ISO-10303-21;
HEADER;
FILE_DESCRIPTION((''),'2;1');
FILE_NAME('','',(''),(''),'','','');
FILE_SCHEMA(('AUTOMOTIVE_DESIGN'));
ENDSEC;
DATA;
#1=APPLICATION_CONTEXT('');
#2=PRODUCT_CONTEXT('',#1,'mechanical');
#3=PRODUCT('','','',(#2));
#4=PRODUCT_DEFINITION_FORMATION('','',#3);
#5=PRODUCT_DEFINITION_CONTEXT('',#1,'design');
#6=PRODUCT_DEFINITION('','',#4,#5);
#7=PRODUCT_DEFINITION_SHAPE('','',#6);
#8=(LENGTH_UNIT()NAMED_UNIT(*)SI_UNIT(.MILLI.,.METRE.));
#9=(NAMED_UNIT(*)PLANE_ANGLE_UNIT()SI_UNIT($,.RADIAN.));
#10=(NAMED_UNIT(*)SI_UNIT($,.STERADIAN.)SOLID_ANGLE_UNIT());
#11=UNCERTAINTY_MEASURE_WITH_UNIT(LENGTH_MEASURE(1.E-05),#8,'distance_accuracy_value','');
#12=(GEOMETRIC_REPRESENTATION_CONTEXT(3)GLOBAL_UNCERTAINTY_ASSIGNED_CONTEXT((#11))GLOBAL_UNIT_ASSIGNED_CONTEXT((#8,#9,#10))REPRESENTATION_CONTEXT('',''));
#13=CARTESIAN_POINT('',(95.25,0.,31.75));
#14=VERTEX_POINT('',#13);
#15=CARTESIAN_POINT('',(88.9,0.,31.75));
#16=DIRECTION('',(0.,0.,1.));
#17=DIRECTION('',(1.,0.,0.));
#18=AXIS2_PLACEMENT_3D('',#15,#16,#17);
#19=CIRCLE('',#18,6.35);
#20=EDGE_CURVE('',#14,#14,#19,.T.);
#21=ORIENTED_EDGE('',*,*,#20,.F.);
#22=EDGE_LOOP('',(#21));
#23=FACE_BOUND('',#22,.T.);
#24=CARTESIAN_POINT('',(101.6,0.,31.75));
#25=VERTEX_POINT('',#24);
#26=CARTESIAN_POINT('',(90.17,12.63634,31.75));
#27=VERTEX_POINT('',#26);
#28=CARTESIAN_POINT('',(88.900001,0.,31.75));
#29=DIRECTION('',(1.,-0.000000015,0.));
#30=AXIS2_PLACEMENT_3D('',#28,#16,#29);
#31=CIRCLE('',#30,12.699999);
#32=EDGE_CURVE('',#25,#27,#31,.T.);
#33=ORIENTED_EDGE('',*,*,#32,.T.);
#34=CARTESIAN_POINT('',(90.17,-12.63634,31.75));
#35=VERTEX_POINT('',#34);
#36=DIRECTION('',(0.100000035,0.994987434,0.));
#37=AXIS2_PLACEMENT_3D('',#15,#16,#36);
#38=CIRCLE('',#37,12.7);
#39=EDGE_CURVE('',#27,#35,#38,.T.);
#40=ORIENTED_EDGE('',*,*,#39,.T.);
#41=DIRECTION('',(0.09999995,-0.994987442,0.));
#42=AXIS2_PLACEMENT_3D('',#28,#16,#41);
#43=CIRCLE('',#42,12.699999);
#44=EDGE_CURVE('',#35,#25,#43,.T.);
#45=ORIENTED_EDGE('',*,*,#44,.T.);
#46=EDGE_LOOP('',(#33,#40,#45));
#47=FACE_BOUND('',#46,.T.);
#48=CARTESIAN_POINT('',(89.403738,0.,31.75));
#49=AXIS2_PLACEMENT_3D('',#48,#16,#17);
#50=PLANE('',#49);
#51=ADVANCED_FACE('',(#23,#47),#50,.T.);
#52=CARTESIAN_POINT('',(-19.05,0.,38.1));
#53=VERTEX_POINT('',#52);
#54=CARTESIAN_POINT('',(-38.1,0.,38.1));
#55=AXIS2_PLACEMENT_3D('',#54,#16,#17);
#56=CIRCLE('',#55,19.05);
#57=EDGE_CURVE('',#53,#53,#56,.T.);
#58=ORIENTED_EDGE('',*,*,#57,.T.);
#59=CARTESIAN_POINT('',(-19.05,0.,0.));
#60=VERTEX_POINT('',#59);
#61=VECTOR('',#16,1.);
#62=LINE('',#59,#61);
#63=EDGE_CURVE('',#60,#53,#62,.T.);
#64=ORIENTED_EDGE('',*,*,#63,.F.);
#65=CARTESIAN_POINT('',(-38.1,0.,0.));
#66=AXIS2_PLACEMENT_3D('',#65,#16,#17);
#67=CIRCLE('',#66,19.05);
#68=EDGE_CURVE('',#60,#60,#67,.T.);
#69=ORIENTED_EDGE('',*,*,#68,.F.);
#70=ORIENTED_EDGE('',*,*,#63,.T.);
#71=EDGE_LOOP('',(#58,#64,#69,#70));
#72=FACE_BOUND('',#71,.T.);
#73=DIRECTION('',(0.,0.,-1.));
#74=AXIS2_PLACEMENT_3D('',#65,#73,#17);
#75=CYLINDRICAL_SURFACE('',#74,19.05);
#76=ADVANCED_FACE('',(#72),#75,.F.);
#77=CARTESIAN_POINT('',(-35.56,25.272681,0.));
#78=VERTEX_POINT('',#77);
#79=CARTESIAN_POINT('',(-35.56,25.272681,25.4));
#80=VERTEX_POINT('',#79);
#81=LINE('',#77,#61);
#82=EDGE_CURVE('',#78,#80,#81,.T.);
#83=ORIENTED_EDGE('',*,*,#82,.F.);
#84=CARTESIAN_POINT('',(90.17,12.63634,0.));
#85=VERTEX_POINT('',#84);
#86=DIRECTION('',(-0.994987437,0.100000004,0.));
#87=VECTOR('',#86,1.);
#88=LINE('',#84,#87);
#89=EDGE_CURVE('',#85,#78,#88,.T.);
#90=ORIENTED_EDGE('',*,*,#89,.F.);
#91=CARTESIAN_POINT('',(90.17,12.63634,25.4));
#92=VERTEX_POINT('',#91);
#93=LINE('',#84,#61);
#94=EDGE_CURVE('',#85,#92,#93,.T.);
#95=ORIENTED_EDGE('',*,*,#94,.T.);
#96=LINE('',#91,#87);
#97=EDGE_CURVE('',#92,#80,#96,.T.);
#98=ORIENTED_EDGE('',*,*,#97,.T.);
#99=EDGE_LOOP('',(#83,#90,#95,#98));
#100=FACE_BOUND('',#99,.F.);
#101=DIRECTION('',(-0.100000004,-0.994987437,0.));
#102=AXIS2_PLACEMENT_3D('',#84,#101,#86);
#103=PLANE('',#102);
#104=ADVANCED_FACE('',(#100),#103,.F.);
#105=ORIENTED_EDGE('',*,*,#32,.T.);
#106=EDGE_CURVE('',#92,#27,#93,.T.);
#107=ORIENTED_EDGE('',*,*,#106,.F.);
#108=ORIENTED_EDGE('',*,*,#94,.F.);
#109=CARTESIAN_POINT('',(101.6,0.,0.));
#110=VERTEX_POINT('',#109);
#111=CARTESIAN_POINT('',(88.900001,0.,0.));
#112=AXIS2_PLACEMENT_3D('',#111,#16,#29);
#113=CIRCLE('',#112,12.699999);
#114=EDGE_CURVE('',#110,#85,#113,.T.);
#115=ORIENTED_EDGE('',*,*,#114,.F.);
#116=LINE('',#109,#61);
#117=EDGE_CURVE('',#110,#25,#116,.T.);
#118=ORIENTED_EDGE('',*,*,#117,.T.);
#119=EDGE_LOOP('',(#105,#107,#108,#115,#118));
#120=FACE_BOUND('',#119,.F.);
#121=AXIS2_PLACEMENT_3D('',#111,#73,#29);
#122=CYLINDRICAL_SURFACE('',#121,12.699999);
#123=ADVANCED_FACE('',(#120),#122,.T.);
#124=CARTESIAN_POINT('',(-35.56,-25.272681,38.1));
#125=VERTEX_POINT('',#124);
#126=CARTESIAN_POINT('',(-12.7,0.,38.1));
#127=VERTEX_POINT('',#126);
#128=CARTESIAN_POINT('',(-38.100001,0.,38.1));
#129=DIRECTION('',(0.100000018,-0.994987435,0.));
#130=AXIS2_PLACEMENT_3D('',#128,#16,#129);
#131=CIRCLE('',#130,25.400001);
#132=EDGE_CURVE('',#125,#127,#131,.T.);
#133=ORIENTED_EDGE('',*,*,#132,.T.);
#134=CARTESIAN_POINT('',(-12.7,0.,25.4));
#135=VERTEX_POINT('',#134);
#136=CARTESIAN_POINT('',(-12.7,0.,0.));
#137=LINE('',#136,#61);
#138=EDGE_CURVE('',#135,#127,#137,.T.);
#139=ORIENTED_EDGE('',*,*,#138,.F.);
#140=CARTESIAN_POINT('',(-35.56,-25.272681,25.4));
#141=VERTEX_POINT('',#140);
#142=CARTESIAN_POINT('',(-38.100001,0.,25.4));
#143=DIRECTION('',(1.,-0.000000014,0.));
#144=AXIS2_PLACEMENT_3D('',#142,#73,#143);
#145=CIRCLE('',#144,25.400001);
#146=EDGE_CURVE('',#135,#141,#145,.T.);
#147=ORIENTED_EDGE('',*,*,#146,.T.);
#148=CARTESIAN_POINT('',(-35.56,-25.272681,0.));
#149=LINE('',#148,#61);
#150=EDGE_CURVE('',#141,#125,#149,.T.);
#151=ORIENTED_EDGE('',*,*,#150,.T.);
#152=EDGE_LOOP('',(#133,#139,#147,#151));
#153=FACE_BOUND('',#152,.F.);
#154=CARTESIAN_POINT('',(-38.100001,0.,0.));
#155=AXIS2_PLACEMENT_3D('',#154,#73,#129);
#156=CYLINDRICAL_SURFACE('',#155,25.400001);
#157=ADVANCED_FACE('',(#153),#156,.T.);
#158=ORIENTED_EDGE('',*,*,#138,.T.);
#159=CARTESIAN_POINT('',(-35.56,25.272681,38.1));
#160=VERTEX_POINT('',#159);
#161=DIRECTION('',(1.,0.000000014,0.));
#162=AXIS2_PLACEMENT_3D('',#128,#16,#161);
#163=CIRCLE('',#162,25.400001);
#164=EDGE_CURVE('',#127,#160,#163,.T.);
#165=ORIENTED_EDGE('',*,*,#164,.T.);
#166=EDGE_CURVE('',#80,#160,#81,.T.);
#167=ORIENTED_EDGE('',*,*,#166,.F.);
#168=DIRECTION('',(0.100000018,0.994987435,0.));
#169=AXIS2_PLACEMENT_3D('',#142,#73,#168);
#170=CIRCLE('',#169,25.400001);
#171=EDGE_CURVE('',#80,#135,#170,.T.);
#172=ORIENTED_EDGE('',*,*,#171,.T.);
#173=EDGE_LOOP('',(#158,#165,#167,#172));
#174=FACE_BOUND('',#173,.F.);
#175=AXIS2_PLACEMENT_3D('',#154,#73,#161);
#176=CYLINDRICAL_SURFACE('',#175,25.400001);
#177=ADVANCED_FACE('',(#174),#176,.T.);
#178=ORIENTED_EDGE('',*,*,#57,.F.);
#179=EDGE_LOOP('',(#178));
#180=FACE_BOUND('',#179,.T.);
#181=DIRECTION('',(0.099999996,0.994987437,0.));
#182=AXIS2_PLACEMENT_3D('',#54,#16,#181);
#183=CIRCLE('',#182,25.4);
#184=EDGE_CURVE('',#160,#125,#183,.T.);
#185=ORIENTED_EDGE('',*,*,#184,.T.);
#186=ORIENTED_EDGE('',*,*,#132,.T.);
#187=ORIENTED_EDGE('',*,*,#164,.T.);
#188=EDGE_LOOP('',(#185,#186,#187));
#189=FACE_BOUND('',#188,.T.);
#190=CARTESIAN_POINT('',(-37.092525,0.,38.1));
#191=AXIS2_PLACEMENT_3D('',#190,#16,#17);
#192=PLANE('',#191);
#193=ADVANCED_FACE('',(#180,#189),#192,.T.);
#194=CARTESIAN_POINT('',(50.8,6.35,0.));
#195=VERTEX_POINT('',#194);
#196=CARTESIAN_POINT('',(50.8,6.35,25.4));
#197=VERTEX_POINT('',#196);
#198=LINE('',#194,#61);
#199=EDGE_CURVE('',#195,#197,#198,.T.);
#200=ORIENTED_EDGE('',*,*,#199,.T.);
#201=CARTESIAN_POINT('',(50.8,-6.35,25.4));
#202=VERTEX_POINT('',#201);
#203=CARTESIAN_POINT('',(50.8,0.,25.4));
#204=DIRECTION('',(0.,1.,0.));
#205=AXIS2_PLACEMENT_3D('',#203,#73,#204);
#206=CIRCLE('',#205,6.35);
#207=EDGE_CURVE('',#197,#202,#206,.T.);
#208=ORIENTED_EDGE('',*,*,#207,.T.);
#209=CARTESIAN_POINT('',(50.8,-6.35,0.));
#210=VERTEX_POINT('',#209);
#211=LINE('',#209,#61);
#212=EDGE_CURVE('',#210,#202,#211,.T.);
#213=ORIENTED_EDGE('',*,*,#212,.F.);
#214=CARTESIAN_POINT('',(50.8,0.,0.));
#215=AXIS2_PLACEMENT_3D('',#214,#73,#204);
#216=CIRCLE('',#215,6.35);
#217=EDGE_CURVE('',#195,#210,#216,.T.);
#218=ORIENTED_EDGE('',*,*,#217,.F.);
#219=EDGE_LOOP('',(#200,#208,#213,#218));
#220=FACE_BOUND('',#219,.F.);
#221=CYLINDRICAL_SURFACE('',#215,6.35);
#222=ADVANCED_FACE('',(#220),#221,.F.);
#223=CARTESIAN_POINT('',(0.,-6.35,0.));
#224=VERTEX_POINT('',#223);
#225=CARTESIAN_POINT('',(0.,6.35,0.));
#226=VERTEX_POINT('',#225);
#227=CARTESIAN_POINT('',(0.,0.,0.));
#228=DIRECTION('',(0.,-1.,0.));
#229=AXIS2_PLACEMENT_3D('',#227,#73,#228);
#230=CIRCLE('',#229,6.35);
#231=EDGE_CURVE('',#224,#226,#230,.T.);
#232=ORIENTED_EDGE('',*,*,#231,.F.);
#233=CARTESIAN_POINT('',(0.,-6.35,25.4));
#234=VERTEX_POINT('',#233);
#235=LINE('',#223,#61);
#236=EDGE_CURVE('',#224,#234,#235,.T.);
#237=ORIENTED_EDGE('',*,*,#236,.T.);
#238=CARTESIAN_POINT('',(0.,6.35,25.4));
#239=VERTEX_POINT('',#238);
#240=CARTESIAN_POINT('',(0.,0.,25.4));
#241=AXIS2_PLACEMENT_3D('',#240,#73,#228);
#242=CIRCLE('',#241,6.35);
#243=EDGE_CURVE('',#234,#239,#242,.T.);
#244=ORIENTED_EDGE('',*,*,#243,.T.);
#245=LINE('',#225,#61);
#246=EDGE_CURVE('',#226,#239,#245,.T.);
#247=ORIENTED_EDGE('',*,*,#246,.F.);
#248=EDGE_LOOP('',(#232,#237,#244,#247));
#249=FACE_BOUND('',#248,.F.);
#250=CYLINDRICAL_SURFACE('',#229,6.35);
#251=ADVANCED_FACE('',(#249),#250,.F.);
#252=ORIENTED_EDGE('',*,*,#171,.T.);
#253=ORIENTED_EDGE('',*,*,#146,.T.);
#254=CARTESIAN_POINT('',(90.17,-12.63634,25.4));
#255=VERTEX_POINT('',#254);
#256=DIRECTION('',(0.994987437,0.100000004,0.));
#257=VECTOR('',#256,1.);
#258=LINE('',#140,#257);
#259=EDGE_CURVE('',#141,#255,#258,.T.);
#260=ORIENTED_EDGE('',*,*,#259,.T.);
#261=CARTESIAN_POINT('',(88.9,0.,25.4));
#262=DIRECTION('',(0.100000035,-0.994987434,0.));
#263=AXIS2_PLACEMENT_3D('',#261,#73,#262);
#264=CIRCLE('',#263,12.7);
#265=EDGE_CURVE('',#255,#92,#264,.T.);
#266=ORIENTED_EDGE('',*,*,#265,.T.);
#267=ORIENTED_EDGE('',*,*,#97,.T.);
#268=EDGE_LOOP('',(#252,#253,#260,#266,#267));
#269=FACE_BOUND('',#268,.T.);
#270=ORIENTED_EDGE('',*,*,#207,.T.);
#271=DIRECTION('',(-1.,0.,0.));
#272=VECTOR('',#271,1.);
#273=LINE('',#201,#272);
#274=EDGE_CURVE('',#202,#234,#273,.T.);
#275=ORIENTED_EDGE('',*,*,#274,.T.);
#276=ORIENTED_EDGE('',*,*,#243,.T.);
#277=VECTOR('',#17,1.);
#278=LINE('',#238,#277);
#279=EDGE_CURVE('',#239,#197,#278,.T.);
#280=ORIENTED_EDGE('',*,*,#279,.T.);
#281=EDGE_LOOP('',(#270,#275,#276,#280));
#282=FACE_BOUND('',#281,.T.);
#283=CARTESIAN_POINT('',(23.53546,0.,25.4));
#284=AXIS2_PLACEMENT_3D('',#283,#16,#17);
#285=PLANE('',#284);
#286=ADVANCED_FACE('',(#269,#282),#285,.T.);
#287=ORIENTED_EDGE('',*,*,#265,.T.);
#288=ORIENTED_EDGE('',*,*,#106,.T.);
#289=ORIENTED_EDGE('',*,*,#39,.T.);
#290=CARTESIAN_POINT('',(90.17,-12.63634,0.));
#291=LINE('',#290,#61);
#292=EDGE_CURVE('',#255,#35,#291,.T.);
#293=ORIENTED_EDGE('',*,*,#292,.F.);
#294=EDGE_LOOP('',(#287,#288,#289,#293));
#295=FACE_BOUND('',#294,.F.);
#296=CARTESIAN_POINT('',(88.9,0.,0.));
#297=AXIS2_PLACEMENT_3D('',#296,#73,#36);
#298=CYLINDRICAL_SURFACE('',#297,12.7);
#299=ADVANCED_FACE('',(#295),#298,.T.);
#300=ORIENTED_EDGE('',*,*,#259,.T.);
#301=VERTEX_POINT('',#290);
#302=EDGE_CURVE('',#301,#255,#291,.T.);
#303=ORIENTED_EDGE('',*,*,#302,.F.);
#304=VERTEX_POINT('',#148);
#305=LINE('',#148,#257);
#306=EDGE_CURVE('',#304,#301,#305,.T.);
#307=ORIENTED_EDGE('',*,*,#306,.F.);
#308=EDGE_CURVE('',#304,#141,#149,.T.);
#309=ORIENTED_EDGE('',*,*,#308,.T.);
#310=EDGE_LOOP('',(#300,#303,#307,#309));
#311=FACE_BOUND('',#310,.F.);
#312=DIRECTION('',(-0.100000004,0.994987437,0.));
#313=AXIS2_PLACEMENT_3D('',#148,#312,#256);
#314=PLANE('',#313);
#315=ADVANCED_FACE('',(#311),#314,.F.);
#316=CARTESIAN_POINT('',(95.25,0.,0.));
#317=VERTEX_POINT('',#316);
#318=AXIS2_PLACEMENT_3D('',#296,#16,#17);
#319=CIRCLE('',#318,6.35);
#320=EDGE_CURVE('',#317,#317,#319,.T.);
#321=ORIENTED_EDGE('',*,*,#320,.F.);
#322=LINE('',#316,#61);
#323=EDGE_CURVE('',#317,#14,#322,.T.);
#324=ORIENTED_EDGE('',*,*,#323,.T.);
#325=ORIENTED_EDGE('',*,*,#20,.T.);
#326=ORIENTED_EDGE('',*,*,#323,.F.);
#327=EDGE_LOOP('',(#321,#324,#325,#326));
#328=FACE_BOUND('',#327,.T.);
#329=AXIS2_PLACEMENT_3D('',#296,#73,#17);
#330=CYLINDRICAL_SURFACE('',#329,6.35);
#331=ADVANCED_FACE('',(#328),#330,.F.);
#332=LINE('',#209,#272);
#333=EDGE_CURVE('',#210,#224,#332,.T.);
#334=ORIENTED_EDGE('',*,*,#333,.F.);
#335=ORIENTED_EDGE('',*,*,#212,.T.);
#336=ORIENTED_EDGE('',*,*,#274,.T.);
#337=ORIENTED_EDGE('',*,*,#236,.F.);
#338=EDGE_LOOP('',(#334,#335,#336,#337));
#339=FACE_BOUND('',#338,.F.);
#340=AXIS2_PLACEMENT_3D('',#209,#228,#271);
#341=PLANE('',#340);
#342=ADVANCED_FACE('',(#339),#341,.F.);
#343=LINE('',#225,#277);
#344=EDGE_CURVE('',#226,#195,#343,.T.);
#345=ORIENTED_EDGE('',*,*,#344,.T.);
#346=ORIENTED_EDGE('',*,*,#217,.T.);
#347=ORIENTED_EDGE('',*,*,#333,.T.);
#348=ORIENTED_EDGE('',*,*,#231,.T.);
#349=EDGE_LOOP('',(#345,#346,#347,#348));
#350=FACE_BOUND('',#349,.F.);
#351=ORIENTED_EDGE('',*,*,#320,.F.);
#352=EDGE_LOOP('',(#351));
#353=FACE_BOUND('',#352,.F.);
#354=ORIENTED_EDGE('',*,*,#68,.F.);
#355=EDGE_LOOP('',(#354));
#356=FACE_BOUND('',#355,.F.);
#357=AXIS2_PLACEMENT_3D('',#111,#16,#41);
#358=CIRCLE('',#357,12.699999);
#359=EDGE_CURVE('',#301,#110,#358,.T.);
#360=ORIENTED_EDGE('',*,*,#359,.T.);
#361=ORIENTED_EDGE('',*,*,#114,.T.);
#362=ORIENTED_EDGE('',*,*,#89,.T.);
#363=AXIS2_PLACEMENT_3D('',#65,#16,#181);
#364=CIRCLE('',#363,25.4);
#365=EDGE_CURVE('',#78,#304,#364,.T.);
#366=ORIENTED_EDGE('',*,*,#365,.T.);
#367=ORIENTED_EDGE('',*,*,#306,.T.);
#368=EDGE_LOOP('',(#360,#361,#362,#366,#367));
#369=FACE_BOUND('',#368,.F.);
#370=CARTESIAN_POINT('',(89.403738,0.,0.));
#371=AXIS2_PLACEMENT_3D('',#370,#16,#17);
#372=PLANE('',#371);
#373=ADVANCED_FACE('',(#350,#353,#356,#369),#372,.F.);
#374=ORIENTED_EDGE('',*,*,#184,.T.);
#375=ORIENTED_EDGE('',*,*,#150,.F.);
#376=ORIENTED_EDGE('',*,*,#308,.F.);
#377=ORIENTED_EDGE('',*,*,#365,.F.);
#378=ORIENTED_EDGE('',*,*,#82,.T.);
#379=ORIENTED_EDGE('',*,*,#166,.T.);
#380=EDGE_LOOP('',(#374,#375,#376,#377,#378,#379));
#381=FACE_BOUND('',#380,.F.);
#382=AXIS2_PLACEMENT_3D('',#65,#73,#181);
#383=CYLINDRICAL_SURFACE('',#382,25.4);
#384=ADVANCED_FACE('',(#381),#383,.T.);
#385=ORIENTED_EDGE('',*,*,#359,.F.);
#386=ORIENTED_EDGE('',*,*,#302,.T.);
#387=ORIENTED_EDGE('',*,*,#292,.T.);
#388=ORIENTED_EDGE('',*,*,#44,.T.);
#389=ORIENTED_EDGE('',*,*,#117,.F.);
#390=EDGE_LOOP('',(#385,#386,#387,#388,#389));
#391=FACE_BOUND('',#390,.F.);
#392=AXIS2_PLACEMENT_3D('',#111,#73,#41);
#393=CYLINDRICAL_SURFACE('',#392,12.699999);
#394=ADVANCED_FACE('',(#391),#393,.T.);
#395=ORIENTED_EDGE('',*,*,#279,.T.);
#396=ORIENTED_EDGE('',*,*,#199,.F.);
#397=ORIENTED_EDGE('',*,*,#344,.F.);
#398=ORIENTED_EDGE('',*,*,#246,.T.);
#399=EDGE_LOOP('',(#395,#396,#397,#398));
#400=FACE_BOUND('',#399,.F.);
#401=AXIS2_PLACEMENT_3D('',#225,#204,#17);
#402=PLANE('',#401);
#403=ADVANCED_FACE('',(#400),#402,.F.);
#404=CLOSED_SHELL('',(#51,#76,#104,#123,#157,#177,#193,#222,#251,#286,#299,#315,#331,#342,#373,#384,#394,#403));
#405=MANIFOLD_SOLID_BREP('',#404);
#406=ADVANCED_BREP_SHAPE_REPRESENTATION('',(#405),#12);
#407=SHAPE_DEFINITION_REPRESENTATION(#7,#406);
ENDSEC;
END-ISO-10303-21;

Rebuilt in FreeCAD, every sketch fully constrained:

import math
import FreeCAD as App
import Part
import Sketcher
from FreeCAD import Vector
Q = App.Units.Quantity

doc = App.newDocument("Part")
body = doc.addObject("PartDesign::Body", "Body")

# Sketch on XY plane
sketch1 = doc.addObject("Sketcher::SketchObject", "Sketch")
body.addObject(sketch1)
sketch1.AttachmentSupport = (doc.XY_Plane, [""])
sketch1.MapMode = "FlatFace"
sketch1.addGeometry([
    Part.ArcOfCircle(Part.Circle(Vector(89, 0, 0), Vector(0, 0, 1), 13), math.radians(84), math.radians(276)),  # 0
    Part.LineSegment(Vector(90, 13, 0), Vector(-36, 25, 0)),  # 1
    Part.ArcOfCircle(Part.Circle(Vector(-38, 0, 0), Vector(0, 0, 1), 25), math.radians(0), math.radians(84)),  # 2
    Part.ArcOfCircle(Part.Circle(Vector(-38, 0, 0), Vector(0, 0, 1), 25), math.radians(-84), math.radians(0)),  # 3
    Part.LineSegment(Vector(-36, -25, 0), Vector(90, -13, 0)),  # 4
    Part.LineSegment(Vector(51, -6, 0), Vector(0, -6, 0)),  # 5
    Part.ArcOfCircle(Part.Circle(Vector(0, 0, 0), Vector(0, 0, 1), 6), math.radians(90), math.radians(270)),  # 6
    Part.LineSegment(Vector(0, 6, 0), Vector(51, 6, 0)),  # 7
    Part.ArcOfCircle(Part.Circle(Vector(51, 0, 0), Vector(0, 0, 1), 6), math.radians(-90), math.radians(90)),  # 8
], False)
sketch1.addConstraint([
    Sketcher.Constraint("Tangent", 0, 1, 1, 1),
    Sketcher.Constraint("Tangent", 1, 2, 2, 2),
    Sketcher.Constraint("Tangent", 2, 1, 3, 2),
    Sketcher.Constraint("Tangent", 3, 1, 4, 1),
    Sketcher.Constraint("Tangent", 4, 2, 0, 2),
    Sketcher.Constraint("Tangent", 5, 2, 6, 2),
    Sketcher.Constraint("Tangent", 6, 1, 7, 1),
    Sketcher.Constraint("Tangent", 7, 2, 8, 2),
    Sketcher.Constraint("Tangent", 8, 1, 5, 1),
    Sketcher.Constraint("Horizontal", 5),
    Sketcher.Constraint("Horizontal", 7),
    Sketcher.Constraint("Coincident", 6, 3, -1, 1),
    Sketcher.Constraint("Equal", 2, 3),
    Sketcher.Constraint("Symmetric", 1, 2, 3, 1, -1),
    Sketcher.Constraint("PointOnObject", 2, 1, -1),
    Sketcher.Constraint("Radius", 2, Q("1 in")),
    Sketcher.Constraint("Radius", 0, Q("0.5 in")),
    Sketcher.Constraint("DistanceX", 5, 2, 5, 1, Q("2 in")),
    Sketcher.Constraint("Radius", 6, Q("0.25 in")),
    Sketcher.Constraint("DistanceX", 2, 3, 0, 3, Q("5 in")),
    Sketcher.Constraint("DistanceX", -1, 1, 0, 3, Q("3.5 in")),
])
pad1 = doc.addObject("PartDesign::Pad", "Pad")
body.addObject(pad1)
pad1.Profile = sketch1
pad1.Length = Q("1 in")

# Sketch on XY plane
sketch2 = doc.addObject("Sketcher::SketchObject", "Sketch001")
body.addObject(sketch2)
sketch2.AttachmentSupport = (doc.XY_Plane, [""])
sketch2.MapMode = "FlatFace"
sketch2.addGeometry([
    Part.ArcOfCircle(Part.Circle(Vector(-38, 0, 0), Vector(0, 0, 1), 25), math.radians(0), math.radians(84)),
    Part.ArcOfCircle(Part.Circle(Vector(-38, 0, 0), Vector(0, 0, 1), 25), math.radians(84), math.radians(276)),
    Part.ArcOfCircle(Part.Circle(Vector(-38, 0, 0), Vector(0, 0, 1), 25), math.radians(-84), math.radians(0)),
    Part.Circle(Vector(-38, 0, 0), Vector(0, 0, 1), 19),
], False)
sketch2.addConstraint([
    Sketcher.Constraint("Tangent", 0, 2, 1, 1),
    Sketcher.Constraint("Tangent", 1, 2, 2, 1),
    Sketcher.Constraint("Tangent", 2, 2, 0, 1),
    Sketcher.Constraint("Coincident", 3, 3, 0, 3),
    Sketcher.Constraint("Symmetric", 0, 2, 1, 2, -1),
    Sketcher.Constraint("PointOnObject", 2, 2, -1),
    Sketcher.Constraint("Radius", 0, Q("1 in")),
    Sketcher.Constraint("Diameter", 3, Q("1.5 in")),
    Sketcher.Constraint("DistanceX", 0, 3, -1, 1, Q("1.5 in")),
    Sketcher.Constraint("DistanceX", 0, 2, -1, 1, Q("1.4 in")),
])
pad2 = doc.addObject("PartDesign::Pad", "Pad001")
body.addObject(pad2)
pad2.Profile = sketch2
pad2.Length = Q("1.5 in")

# Sketch on XY plane
sketch3 = doc.addObject("Sketcher::SketchObject", "Sketch002")
body.addObject(sketch3)
sketch3.AttachmentSupport = (doc.XY_Plane, [""])
sketch3.MapMode = "FlatFace"
sketch3.addGeometry([
    Part.ArcOfCircle(Part.Circle(Vector(89, 0, 0), Vector(0, 0, 1), 13), math.radians(-84), math.radians(0)),
    Part.ArcOfCircle(Part.Circle(Vector(89, 0, 0), Vector(0, 0, 1), 13), math.radians(0), math.radians(84)),
    Part.ArcOfCircle(Part.Circle(Vector(89, 0, 0), Vector(0, 0, 1), 13), math.radians(84), math.radians(276)),
    Part.Circle(Vector(89, 0, 0), Vector(0, 0, 1), 6),
], False)
sketch3.addConstraint([
    Sketcher.Constraint("Tangent", 0, 2, 1, 1),
    Sketcher.Constraint("Tangent", 1, 2, 2, 1),
    Sketcher.Constraint("Tangent", 2, 2, 0, 1),
    Sketcher.Constraint("Coincident", 3, 3, 0, 3),
    Sketcher.Constraint("Symmetric", 1, 2, 2, 2, -1),
    Sketcher.Constraint("PointOnObject", 0, 2, -1),
    Sketcher.Constraint("Diameter", 3, Q("0.5 in")),
    Sketcher.Constraint("Radius", 0, Q("0.5 in")),
    Sketcher.Constraint("DistanceX", -1, 1, 0, 2, Q("4 in")),
    Sketcher.Constraint("DistanceX", -1, 1, 1, 2, Q("3.55 in")),
])
pad3 = doc.addObject("PartDesign::Pad", "Pad002")
body.addObject(pad3)
pad3.Profile = sketch3
pad3.Length = Q("1.25 in")

doc.recompute()
